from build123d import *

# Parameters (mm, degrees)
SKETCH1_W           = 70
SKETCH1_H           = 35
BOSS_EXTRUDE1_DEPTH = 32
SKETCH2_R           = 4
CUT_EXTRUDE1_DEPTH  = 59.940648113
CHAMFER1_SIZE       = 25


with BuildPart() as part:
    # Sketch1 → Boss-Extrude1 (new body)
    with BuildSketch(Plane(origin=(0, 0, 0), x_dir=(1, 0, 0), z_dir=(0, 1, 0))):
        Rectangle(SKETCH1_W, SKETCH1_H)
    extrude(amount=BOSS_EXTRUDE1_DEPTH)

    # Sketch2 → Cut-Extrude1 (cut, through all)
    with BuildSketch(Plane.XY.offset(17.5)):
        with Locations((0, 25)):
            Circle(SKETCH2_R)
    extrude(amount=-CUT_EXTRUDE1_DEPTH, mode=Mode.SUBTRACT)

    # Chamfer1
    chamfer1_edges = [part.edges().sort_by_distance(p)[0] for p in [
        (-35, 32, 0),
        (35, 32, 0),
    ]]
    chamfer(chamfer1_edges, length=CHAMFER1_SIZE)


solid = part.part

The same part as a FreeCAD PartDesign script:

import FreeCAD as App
import Part
import Sketcher


def edges_at(feature, points):
    """Names of the edges that pass closest to the given points."""
    edges = feature.Shape.Edges
    near = lambda p: min(range(len(edges)), key=lambda i: edges[i].distToShape(Part.Vertex(*p))[0])
    return sorted({f"Edge{near(p) + 1}" for p in points})


def add_polygon(sketch, points):
    """Adds a closed chain of lines whose ends are joined by coincident constraints."""
    first, n = sketch.GeometryCount, len(points)
    for a, b in zip(points, points[1:] + points[:1]):
        sketch.addGeometry(Part.LineSegment(App.Vector(*a, 0), App.Vector(*b, 0)), False)
    for i in range(n):
        sketch.addConstraint(Sketcher.Constraint("Coincident", first + i, 2, first + (i + 1) % n, 1))

doc = App.newDocument("Part")
body = doc.addObject("PartDesign::Body", "Body")

# Sketch on XZ plane
sketch1 = body.newObject("Sketcher::SketchObject", "Sketch")
sketch1.AttachmentSupport = (doc.getObject("XZ_Plane"), [""])
sketch1.MapMode = "FlatFace"
add_polygon(sketch1, [(-35, -18), (-35, 18), (35, 18), (35, -18)])  # lines 0-3
sketch1.addConstraint(Sketcher.Constraint("Vertical", 0))
sketch1.addConstraint(Sketcher.Constraint("Horizontal", 1))
sketch1.addConstraint(Sketcher.Constraint("Vertical", 2))
sketch1.addConstraint(Sketcher.Constraint("Horizontal", 3))
sketch1.addConstraint(Sketcher.Constraint("Symmetric", 0, 2, 2, 2, -1, 1))
sketch1.addConstraint(Sketcher.Constraint("DistanceX", 1, 1, 1, 2, 70.0))
sketch1.addConstraint(Sketcher.Constraint("DistanceY", 0, 1, 0, 2, 35.0))
pad1 = body.newObject("PartDesign::Pad", "Pad")
pad1.Profile = sketch1
pad1.Length = 32
pad1.Reversed = True

# Sketch on XY plane
sketch2 = body.newObject("Sketcher::SketchObject", "Sketch001")
sketch2.AttachmentSupport = (doc.getObject("XY_Plane"), [""])
sketch2.MapMode = "FlatFace"
sketch2.AttachmentOffset = App.Placement(App.Vector(0, 0, 17.5), App.Rotation())
sketch2.addGeometry(Part.Circle(App.Vector(0, 25, 0), App.Vector(0, 0, 1), 4), False)
sketch2.addConstraint(Sketcher.Constraint("PointOnObject", 0, 3, -2))
sketch2.addConstraint(Sketcher.Constraint("Diameter", 0, 8.0))
sketch2.addConstraint(Sketcher.Constraint("DistanceY", -1, 1, 0, 3, 25.0))
pocket1 = body.newObject("PartDesign::Pocket", "Pocket")
pocket1.Profile = sketch2
pocket1.Type = "ThroughAll"
doc.recompute()

chamfer = body.newObject("PartDesign::Chamfer", "Chamfer")
chamfer.Base = (pocket1, edges_at(pocket1, [(-35, 32, 0), (35, 32, 0)]))
chamfer.Size = 25

doc.recompute()
